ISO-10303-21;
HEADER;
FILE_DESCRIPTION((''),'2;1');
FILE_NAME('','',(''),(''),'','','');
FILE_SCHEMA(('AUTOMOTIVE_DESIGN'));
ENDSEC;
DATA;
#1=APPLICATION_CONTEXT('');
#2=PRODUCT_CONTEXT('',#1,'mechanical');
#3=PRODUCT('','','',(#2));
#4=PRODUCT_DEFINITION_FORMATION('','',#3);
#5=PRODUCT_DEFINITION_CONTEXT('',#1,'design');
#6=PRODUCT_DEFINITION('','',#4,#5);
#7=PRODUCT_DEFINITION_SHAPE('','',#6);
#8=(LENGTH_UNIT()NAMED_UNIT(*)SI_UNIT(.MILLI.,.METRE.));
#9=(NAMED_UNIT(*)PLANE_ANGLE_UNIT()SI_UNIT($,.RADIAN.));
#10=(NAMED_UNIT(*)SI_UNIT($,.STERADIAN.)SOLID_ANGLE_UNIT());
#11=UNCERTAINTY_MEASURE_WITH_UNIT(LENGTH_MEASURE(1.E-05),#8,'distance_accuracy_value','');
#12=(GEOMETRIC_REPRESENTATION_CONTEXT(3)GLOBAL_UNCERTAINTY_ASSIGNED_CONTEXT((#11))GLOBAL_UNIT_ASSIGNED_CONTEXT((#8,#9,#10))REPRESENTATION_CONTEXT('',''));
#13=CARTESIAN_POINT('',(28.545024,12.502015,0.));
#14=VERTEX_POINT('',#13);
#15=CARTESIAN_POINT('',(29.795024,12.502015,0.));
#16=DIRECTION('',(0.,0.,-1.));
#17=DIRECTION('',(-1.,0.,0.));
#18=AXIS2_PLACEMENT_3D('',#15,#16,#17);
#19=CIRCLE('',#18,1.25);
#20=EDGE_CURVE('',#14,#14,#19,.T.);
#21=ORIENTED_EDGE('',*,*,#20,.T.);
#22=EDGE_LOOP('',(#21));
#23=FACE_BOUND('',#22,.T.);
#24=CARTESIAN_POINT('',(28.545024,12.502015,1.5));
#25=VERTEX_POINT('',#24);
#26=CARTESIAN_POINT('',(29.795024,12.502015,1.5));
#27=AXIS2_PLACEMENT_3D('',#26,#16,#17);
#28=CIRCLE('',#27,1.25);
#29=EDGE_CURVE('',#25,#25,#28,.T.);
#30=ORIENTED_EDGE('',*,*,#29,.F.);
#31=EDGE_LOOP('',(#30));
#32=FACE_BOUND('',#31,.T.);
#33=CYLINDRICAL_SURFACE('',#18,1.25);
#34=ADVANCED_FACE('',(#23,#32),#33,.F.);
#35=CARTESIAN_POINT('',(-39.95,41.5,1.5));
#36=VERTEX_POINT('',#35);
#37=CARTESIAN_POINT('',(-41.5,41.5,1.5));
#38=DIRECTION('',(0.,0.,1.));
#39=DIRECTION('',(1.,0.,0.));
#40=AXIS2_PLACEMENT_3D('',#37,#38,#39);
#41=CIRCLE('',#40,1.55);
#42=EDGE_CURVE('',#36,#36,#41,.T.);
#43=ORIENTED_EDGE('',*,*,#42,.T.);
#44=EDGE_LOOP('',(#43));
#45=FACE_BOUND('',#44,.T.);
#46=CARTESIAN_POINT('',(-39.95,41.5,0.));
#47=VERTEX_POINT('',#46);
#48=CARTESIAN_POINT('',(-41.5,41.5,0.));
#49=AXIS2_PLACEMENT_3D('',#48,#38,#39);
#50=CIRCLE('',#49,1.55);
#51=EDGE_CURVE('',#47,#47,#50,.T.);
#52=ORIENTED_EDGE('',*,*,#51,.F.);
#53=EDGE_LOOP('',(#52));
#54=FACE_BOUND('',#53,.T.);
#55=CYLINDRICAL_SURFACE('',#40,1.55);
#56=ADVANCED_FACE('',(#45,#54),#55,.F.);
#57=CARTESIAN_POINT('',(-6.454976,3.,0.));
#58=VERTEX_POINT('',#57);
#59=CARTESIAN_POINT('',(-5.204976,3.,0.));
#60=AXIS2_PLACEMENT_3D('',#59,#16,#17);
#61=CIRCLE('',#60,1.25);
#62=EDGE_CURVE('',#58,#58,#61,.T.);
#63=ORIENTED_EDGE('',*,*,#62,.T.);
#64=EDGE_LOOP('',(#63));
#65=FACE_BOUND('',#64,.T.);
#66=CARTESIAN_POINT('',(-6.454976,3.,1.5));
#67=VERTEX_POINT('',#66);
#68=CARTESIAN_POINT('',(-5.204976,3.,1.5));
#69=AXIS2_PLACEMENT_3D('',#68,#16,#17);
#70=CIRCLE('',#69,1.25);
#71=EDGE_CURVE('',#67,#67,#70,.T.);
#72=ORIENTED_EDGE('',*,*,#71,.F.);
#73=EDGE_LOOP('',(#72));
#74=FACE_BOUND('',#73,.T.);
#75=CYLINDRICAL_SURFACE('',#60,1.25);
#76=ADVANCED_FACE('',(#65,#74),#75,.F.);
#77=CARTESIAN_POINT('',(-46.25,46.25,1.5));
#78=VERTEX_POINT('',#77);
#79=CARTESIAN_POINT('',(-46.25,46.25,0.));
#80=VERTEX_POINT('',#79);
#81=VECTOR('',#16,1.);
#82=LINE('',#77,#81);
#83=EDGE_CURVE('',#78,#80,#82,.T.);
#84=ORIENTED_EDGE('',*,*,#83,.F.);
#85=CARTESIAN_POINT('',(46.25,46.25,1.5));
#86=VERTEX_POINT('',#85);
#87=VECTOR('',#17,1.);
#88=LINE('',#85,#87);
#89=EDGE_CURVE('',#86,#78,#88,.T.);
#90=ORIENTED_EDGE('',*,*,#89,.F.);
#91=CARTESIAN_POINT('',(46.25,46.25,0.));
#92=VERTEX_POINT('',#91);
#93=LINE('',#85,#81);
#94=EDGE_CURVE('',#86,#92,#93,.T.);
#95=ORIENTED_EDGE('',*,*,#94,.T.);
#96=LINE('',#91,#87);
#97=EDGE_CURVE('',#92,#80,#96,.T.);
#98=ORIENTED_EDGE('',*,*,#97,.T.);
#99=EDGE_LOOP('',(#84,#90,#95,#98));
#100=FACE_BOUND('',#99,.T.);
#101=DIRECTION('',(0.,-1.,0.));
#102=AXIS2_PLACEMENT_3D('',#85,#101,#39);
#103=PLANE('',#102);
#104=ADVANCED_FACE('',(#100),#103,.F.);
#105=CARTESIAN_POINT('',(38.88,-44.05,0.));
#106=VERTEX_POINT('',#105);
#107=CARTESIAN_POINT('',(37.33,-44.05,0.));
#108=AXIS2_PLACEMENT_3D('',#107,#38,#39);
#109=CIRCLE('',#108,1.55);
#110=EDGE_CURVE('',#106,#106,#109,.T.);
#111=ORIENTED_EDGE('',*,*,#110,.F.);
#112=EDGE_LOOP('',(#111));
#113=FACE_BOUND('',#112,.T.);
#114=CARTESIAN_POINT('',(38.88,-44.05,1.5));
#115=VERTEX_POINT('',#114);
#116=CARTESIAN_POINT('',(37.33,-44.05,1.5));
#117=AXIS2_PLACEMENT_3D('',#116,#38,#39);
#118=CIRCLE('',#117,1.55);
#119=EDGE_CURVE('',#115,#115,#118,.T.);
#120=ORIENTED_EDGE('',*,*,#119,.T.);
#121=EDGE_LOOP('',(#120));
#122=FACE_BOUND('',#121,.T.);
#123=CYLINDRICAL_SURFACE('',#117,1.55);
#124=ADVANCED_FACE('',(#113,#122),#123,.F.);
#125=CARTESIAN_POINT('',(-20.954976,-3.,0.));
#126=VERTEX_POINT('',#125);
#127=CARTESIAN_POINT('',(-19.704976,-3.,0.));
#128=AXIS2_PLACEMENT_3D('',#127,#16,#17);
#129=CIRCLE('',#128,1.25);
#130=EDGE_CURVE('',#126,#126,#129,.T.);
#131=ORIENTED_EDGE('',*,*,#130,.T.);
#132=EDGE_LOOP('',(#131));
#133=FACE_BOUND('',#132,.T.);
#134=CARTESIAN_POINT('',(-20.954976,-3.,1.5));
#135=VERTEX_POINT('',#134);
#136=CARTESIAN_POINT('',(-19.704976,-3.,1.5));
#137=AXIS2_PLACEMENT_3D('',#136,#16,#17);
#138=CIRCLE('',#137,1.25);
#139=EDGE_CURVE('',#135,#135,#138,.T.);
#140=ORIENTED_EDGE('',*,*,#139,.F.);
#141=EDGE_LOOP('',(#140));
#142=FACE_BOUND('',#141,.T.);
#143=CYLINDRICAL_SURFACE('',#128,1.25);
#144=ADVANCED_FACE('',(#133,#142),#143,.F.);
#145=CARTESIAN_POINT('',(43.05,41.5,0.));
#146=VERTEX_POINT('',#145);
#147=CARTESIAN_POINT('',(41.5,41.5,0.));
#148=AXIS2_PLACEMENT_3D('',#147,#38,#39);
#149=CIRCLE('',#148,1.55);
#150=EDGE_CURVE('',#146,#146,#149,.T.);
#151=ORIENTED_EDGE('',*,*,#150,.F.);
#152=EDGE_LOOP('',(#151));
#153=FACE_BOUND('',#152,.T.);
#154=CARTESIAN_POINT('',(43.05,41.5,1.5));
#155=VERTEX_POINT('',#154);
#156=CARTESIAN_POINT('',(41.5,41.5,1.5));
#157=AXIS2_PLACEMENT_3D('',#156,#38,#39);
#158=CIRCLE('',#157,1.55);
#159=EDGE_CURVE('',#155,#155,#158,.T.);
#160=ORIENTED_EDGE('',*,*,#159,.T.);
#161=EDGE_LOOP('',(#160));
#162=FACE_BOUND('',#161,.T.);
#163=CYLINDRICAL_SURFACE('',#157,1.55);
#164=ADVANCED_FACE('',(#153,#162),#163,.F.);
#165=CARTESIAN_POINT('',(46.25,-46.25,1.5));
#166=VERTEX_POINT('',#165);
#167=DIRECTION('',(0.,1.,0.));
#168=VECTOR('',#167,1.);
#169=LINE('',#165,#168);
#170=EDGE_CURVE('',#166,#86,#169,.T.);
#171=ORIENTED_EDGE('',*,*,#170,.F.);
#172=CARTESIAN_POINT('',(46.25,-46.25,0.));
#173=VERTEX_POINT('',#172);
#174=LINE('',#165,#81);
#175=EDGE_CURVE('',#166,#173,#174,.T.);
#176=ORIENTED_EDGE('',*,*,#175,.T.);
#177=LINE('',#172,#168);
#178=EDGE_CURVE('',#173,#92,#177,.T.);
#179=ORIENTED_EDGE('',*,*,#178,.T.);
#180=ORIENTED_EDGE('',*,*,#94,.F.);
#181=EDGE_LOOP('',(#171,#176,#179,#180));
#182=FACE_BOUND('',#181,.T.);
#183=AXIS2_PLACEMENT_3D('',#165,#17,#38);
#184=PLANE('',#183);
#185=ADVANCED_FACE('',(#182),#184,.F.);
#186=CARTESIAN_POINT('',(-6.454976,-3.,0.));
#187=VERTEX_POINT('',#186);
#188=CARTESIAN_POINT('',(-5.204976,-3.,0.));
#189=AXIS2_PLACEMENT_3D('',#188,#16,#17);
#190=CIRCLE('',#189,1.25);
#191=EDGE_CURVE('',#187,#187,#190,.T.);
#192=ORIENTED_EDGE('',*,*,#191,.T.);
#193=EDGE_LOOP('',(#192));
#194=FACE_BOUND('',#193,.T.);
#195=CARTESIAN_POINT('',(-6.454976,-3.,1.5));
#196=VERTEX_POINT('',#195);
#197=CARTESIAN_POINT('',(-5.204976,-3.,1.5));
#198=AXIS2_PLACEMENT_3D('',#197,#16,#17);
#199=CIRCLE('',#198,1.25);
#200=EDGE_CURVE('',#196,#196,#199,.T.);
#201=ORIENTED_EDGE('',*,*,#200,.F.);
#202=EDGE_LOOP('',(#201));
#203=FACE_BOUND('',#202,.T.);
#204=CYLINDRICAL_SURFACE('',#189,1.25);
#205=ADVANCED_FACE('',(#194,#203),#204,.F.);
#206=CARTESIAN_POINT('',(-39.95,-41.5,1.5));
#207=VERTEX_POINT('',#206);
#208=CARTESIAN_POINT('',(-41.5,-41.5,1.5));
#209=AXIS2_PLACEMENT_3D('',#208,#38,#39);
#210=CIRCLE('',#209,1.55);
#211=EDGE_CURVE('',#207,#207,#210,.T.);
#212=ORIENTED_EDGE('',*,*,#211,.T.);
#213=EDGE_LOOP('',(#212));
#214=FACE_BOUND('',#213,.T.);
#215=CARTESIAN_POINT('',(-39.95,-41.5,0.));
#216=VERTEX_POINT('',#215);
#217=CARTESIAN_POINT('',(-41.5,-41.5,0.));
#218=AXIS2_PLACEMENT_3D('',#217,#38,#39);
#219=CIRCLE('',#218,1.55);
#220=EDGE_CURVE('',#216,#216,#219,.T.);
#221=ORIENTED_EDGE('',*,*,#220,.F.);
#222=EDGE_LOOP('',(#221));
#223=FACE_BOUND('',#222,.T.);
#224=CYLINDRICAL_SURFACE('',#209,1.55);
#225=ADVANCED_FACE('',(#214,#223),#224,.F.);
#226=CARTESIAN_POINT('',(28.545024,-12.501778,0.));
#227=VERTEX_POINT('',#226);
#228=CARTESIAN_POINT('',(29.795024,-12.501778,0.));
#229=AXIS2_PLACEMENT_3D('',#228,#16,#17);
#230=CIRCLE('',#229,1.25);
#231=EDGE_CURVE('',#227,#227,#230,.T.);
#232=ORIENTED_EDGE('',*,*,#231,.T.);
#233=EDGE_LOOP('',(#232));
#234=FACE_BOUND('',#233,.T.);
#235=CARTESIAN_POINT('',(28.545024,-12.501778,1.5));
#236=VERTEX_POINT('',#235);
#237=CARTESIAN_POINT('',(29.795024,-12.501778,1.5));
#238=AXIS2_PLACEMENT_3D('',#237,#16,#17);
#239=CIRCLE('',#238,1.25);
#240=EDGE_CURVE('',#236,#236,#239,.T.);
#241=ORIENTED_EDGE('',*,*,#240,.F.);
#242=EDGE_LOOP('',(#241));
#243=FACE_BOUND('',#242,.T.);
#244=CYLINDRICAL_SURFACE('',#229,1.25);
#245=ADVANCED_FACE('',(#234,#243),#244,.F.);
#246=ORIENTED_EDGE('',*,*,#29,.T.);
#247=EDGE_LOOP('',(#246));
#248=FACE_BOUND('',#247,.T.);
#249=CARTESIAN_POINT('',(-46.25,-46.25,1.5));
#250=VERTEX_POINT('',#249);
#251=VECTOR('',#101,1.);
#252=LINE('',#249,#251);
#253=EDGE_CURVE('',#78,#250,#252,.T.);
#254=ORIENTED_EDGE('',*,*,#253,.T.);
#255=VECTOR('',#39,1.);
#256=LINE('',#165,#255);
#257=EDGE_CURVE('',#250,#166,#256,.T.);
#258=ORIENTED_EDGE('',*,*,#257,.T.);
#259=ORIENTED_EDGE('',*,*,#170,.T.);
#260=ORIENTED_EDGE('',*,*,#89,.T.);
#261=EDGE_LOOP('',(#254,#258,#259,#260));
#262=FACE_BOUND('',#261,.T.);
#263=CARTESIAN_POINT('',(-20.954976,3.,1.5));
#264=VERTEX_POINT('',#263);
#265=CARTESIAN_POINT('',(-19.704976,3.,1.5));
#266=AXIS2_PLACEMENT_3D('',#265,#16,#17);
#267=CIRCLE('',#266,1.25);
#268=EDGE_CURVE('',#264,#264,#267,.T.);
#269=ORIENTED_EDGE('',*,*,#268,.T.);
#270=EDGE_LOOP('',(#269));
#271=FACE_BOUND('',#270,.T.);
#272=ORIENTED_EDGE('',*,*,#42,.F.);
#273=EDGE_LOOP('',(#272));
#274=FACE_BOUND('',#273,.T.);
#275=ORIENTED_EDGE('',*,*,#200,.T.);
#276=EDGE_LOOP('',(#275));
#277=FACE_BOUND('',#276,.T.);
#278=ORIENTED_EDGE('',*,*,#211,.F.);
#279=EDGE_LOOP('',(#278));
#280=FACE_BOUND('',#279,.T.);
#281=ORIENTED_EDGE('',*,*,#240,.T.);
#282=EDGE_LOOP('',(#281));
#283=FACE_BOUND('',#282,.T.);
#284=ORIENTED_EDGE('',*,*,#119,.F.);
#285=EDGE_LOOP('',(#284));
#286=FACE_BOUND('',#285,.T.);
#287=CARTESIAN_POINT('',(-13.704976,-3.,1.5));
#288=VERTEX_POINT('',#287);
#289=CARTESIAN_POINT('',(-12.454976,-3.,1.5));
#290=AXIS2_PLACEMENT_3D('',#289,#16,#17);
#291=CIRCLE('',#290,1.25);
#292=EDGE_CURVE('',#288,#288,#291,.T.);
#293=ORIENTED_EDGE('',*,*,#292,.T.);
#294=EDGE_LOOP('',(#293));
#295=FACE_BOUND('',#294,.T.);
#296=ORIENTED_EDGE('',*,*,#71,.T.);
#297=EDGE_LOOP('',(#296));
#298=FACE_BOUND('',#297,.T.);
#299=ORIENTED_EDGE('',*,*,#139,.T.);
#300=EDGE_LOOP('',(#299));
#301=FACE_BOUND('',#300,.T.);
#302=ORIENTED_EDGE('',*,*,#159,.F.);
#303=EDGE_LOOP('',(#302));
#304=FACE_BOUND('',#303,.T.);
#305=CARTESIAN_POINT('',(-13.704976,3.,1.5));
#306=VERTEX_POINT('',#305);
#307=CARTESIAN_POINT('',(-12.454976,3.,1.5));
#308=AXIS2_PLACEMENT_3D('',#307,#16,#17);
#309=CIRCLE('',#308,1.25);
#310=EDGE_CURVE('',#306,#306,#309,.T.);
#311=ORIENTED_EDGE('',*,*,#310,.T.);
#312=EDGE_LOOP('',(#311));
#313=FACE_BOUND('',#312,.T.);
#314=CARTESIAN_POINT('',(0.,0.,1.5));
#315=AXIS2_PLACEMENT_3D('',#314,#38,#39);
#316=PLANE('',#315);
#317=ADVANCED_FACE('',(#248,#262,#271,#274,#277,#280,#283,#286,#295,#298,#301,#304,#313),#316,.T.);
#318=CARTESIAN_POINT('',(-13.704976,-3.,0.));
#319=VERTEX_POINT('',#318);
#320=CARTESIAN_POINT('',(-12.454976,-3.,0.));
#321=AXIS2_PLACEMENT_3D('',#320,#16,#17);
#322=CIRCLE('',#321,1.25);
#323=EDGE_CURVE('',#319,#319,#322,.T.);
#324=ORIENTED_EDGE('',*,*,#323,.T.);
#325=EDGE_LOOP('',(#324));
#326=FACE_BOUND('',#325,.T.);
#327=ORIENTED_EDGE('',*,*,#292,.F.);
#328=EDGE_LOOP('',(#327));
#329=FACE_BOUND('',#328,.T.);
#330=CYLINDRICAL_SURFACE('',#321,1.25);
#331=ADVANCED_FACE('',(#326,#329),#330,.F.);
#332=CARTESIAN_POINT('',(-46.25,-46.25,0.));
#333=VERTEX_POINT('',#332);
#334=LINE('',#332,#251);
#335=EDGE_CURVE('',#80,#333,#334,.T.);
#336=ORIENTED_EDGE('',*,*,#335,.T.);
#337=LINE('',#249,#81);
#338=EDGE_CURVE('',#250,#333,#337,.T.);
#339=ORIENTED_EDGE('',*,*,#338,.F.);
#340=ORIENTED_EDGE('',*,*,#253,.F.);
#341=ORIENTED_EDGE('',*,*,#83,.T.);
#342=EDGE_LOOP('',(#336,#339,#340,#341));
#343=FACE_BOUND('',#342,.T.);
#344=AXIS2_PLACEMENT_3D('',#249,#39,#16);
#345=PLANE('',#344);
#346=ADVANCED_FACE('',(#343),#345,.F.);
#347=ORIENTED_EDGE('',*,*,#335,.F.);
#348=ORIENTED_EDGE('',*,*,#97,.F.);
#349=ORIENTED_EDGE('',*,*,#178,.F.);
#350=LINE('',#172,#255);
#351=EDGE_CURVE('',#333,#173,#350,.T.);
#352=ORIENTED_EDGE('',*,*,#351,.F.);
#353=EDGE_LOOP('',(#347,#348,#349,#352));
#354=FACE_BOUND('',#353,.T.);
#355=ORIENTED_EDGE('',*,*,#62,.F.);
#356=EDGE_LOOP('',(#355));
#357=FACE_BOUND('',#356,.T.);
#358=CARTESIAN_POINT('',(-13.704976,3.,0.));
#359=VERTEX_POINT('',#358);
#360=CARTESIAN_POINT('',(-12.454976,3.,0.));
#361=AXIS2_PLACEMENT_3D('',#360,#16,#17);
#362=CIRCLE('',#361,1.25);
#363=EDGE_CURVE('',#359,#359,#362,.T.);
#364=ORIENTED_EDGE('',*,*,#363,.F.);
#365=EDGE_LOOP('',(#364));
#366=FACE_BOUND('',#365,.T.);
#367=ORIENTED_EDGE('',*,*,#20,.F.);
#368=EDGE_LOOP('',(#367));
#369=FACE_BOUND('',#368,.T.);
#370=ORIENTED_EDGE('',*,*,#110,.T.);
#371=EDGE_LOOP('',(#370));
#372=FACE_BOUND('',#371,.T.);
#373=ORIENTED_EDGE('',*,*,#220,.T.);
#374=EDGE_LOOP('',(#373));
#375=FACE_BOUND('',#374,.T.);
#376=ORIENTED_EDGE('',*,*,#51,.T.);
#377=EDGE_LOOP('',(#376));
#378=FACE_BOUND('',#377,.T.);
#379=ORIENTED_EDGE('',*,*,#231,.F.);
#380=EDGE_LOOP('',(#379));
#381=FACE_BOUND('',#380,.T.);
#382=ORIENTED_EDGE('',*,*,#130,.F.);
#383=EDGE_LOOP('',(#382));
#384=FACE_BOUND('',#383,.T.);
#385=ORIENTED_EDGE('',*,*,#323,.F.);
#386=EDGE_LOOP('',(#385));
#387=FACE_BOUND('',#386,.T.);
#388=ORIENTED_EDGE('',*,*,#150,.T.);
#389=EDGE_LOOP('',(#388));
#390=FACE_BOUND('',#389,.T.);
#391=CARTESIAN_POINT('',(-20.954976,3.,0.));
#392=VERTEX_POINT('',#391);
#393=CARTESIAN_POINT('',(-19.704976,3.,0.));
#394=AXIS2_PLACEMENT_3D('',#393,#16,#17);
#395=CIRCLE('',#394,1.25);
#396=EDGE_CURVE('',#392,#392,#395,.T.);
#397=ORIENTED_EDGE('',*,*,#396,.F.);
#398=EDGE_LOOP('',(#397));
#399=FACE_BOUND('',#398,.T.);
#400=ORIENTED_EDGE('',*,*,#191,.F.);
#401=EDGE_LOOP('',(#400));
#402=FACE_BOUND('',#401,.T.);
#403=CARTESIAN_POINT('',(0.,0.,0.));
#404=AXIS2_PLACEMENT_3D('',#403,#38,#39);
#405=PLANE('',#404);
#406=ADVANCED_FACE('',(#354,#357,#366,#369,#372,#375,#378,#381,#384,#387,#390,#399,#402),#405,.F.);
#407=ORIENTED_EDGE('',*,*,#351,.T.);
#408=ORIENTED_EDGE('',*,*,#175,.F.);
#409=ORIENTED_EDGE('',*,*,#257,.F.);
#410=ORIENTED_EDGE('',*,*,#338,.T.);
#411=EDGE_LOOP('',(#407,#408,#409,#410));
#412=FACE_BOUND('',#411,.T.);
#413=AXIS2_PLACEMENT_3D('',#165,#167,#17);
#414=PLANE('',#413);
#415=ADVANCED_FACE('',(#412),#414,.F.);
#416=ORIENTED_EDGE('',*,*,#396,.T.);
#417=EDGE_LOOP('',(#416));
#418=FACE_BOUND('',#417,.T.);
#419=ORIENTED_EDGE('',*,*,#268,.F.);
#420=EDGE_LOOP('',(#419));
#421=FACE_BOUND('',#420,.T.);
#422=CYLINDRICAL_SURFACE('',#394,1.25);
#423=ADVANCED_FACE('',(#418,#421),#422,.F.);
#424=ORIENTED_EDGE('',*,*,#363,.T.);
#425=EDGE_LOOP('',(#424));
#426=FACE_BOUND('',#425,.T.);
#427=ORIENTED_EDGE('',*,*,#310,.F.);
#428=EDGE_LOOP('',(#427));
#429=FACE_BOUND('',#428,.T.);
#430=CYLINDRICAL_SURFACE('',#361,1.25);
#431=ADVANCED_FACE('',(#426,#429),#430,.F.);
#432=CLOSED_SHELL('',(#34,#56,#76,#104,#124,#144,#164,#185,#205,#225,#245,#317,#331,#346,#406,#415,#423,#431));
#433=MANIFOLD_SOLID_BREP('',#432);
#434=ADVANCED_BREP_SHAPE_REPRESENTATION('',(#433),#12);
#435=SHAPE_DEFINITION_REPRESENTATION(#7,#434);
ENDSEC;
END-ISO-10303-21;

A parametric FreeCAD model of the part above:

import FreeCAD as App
import Part
import Sketcher
from FreeCAD import Vector
Q = App.Units.Quantity

doc = App.newDocument("Part")
body = doc.addObject("PartDesign::Body", "Body")

# Sketch on XY plane
sketch1 = body.newObject("Sketcher::SketchObject", "Sketch")
sketch1.AttachmentSupport = (doc.getObject("XY_Plane"), [""])
sketch1.MapMode = "FlatFace"
sketch1.addGeometry(Part.LineSegment(Vector(-46, 46, 0), Vector(-46, -46, 0)), False)
sketch1.addGeometry(Part.LineSegment(Vector(-46, -46, 0), Vector(46, -46, 0)), False)
sketch1.addGeometry(Part.LineSegment(Vector(46, -46, 0), Vector(46, 46, 0)), False)
sketch1.addGeometry(Part.LineSegment(Vector(46, 46, 0), Vector(-46, 46, 0)), False)
sketch1.addConstraint(Sketcher.Constraint("Coincident", 0, 2, 1, 1))
sketch1.addConstraint(Sketcher.Constraint("Coincident", 1, 2, 2, 1))
sketch1.addConstraint(Sketcher.Constraint("Coincident", 2, 2, 3, 1))
sketch1.addConstraint(Sketcher.Constraint("Coincident", 3, 2, 0, 1))
sketch1.addConstraint(Sketcher.Constraint("Vertical", 0))
sketch1.addConstraint(Sketcher.Constraint("Horizontal", 1))
sketch1.addConstraint(Sketcher.Constraint("Vertical", 2))
sketch1.addConstraint(Sketcher.Constraint("Horizontal", 3))
sketch1.addConstraint(Sketcher.Constraint("Symmetric", 0, 2, 2, 2, -1, 1))
sketch1.addConstraint(Sketcher.Constraint("Equal", 3, 0))
sketch1.addConstraint(Sketcher.Constraint("DistanceX", 1, 1, 1, 2, Q("92.5 mm")))
pad1 = body.newObject("PartDesign::Pad", "Pad")
pad1.Profile = sketch1
pad1.Length = 1.5

# Sketch on XY plane
sketch2 = body.newObject("Sketcher::SketchObject", "Sketch001")
sketch2.AttachmentSupport = (doc.getObject("XY_Plane"), [""])
sketch2.MapMode = "FlatFace"
sketch2.AttachmentOffset = App.Placement(Vector(0, 0, 1.5), App.Rotation())
sketch2.addGeometry(Part.Circle(Vector(-41.5, 41.5, 0), Vector(0, 0, 1), 1.6), False)
sketch2.addGeometry(Part.Circle(Vector(41.5, 41.5, 0), Vector(0, 0, 1), 1.6), False)
sketch2.addGeometry(Part.Circle(Vector(37.3, -44, 0), Vector(0, 0, 1), 1.6), False)
sketch2.addGeometry(Part.Circle(Vector(-41.5, -41.5, 0), Vector(0, 0, 1), 1.6), False)
sketch2.addConstraint(Sketcher.Constraint("Equal", 0, 1))
sketch2.addConstraint(Sketcher.Constraint("Equal", 1, 2))
sketch2.addConstraint(Sketcher.Constraint("Equal", 2, 3))
sketch2.addConstraint(Sketcher.Constraint("Symmetric", 1, 3, 3, 3, -1, 1))
sketch2.addConstraint(Sketcher.Constraint("Symmetric", 0, 3, 1, 3, -2))
sketch2.addConstraint(Sketcher.Constraint("Diameter", 0, Q("3.1 mm")))
sketch2.addConstraint(Sketcher.Constraint("DistanceX", 0, 3, 1, 3, Q("83 mm")))
sketch2.addConstraint(Sketcher.Constraint("DistanceY", 3, 3, 0, 3, Q("83 mm")))
sketch2.addConstraint(Sketcher.Constraint("DistanceX", -1, 1, 2, 3, Q("37.33 mm")))
sketch2.addConstraint(Sketcher.Constraint("DistanceY", 2, 3, -1, 1, Q("44.05 mm")))
doc.recompute()
hole = body.newObject("PartDesign::Hole", "Hole")
hole.Profile = sketch2
hole.ThreadType = "None"
hole.Diameter = 3.1
hole.DepthType = "ThroughAll"

# Sketch on XY plane
sketch3 = body.newObject("Sketcher::SketchObject", "Sketch002")
sketch3.AttachmentSupport = (doc.getObject("XY_Plane"), [""])
sketch3.MapMode = "FlatFace"
sketch3.addGeometry(Part.Circle(Vector(-19.7, 3, 0), Vector(0, 0, 1), 1.2), False)
sketch3.addGeometry(Part.Circle(Vector(-19.7, -3, 0), Vector(0, 0, 1), 1.2), False)
sketch3.addGeometry(Part.Circle(Vector(-12.5, -3, 0), Vector(0, 0, 1), 1.2), False)
sketch3.addGeometry(Part.Circle(Vector(-12.5, 3, 0), Vector(0, 0, 1), 1.2), False)
sketch3.addGeometry(Part.Circle(Vector(-5.2, 3, 0), Vector(0, 0, 1), 1.2), False)
sketch3.addGeometry(Part.Circle(Vector(-5.2, -3, 0), Vector(0, 0, 1), 1.2), False)
sketch3.addGeometry(Part.Circle(Vector(29.8, 12.5, 0), Vector(0, 0, 1), 1.2), False)
sketch3.addGeometry(Part.Circle(Vector(29.8, -12.5, 0), Vector(0, 0, 1), 1.2), False)
sketch3.addConstraint(Sketcher.Constraint("Equal", 0, 1))
sketch3.addConstraint(Sketcher.Constraint("Equal", 1, 2))
sketch3.addConstraint(Sketcher.Constraint("Equal", 2, 3))
sketch3.addConstraint(Sketcher.Constraint("Equal", 3, 4))
sketch3.addConstraint(Sketcher.Constraint("Equal", 4, 5))
sketch3.addConstraint(Sketcher.Constraint("Equal", 5, 6))
sketch3.addConstraint(Sketcher.Constraint("Equal", 6, 7))
sketch3.addConstraint(Sketcher.Constraint("Symmetric", 0, 3, 1, 3, -1))
sketch3.addConstraint(Sketcher.Constraint("Symmetric", 2, 3, 3, 3, -1))
sketch3.addConstraint(Sketcher.Constraint("Symmetric", 4, 3, 5, 3, -1))
sketch3.addConstraint(Sketcher.Constraint("Horizontal", 1, 3, 2, 3))
sketch3.addConstraint(Sketcher.Constraint("Horizontal", 3, 3, 4, 3))
sketch3.addConstraint(Sketcher.Constraint("Vertical", 6, 3, 7, 3))
sketch3.addConstraint(Sketcher.Constraint("Diameter", 0, Q("2.5 mm")))
sketch3.addConstraint(Sketcher.Constraint("DistanceY", -1, 1, 0, 3, Q("3 mm")))
sketch3.addConstraint(Sketcher.Constraint("DistanceX", 4, 3, 6, 3, Q("35 mm")))
sketch3.addConstraint(Sketcher.Constraint("DistanceX", 0, 3, 4, 3, Q("14.5 mm")))
sketch3.addConstraint(Sketcher.Constraint("DistanceX", 1, 3, 2, 3, Q("7.25 mm")))
sketch3.addConstraint(Sketcher.Constraint("DistanceX", 0, 3, -1, 1, Q("19.704976 mm")))
sketch3.addConstraint(Sketcher.Constraint("DistanceY", -1, 1, 6, 3, Q("12.502015 mm")))
sketch3.addConstraint(Sketcher.Constraint("DistanceY", 7, 3, -1, 1, Q("12.501778 mm")))
doc.recompute()
hole2 = body.newObject("PartDesign::Hole", "Hole001")
hole2.Profile = sketch3
hole2.ThreadType = "None"
hole2.Diameter = 2.5
hole2.DepthType = "ThroughAll"
hole2.Reversed = True

doc.recompute()
